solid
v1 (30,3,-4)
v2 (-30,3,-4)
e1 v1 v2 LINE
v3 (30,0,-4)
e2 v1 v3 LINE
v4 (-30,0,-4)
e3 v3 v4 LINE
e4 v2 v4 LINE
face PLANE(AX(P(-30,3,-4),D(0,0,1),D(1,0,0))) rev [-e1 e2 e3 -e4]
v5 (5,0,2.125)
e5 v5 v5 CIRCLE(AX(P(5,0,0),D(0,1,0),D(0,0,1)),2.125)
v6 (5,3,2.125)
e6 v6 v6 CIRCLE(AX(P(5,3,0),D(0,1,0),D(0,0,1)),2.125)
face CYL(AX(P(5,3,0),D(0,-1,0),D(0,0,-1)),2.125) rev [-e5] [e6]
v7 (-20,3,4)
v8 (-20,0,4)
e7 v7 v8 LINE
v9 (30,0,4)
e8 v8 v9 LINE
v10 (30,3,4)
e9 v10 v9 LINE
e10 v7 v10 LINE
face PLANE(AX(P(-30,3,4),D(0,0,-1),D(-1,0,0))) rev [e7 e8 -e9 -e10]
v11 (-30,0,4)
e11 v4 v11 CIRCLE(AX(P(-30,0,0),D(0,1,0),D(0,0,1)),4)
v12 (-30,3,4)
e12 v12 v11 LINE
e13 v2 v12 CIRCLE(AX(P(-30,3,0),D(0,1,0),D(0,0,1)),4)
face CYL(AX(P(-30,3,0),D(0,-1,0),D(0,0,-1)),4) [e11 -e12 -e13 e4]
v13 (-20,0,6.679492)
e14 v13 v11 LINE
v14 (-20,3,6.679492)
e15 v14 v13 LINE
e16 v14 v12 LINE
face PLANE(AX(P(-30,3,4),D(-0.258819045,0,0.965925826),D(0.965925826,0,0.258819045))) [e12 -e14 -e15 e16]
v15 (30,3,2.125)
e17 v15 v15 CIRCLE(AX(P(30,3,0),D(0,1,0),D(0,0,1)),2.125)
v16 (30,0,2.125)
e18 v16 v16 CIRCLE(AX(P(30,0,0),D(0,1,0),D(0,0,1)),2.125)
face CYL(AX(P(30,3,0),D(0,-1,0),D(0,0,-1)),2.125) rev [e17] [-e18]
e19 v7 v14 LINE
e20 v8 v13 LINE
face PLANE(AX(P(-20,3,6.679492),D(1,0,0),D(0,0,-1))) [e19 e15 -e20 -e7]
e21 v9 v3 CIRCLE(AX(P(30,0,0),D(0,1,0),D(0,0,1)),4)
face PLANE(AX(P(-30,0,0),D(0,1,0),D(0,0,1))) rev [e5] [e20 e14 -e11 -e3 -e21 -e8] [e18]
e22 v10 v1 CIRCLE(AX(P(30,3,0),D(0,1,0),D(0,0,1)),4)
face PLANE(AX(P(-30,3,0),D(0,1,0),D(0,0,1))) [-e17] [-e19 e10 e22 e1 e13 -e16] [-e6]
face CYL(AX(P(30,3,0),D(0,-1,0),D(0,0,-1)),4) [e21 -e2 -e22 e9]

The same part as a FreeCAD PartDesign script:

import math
import FreeCAD as App
import Part
import Sketcher
Q = App.Units.Quantity


def add_polygon(sketch, points):
    """Adds a closed chain of lines whose ends are joined by coincident constraints."""
    first, n = sketch.GeometryCount, len(points)
    for a, b in zip(points, points[1:] + points[:1]):
        sketch.addGeometry(Part.LineSegment(App.Vector(*a, 0), App.Vector(*b, 0)), False)
    for i in range(n):
        sketch.addConstraint(Sketcher.Constraint("Coincident", first + i, 2, first + (i + 1) % n, 1))

doc = App.newDocument("Part")
params = doc.addObject("Spreadsheet::Sheet", "Params")
for row, (alias, value) in enumerate([
    ("sketch1_radius", "4 mm"),
    ("sketch1_diameter", "4.25 mm"),
    ("sketch1_width", "60 mm"),
    ("pad1_length", "3 mm"),
    ("sketch2_width", "10 mm"),
    ("pad2_length", "3 mm"),
], start=1):
    params.set(f"A{row}", alias)
    params.set(f"B{row}", "=" + value)
    params.setAlias(f"B{row}", alias)

body = doc.addObject("PartDesign::Body", "Body")

# Sketch on XZ plane
sketch1 = body.newObject("Sketcher::SketchObject", "Sketch")
sketch1.AttachmentSupport = (doc.getObject("XZ_Plane"), [""])
sketch1.MapMode = "FlatFace"
sketch1.addGeometry([
    Part.LineSegment(App.Vector(30, -4, 0), App.Vector(-30, -4, 0)),  # 0
    Part.ArcOfCircle(Part.Circle(App.Vector(-30, 0, 0), App.Vector(0, 0, 1), 4), math.radians(90), math.radians(270)),  # 1
    Part.LineSegment(App.Vector(-30, 4, 0), App.Vector(30, 4, 0)),  # 2
    Part.ArcOfCircle(Part.Circle(App.Vector(30, 0, 0), App.Vector(0, 0, 1), 4), math.radians(-90), math.radians(90)),  # 3
    Part.Circle(App.Vector(30, 0, 0), App.Vector(0, 0, 1), 2.1),  # 4
    Part.Circle(App.Vector(5, 0, 0), App.Vector(0, 0, 1), 2.1),  # 5
], False)
sketch1.addConstraint([
    Sketcher.Constraint("Tangent", 0, 2, 1, 2),
    Sketcher.Constraint("Tangent", 1, 1, 2, 1),
    Sketcher.Constraint("Tangent", 2, 2, 3, 2),
    Sketcher.Constraint("Tangent", 3, 1, 0, 1),
    Sketcher.Constraint("Horizontal", 0),
    Sketcher.Constraint("Horizontal", 2),
    Sketcher.Constraint("Coincident", 4, 3, 3, 3),
    Sketcher.Constraint("Equal", 4, 5),
    Sketcher.Constraint("Symmetric", 1, 3, 3, 3, -1, 1),
    Sketcher.Constraint("PointOnObject", 5, 3, -1),
    Sketcher.Constraint("Radius", 1, Q("4 mm")),
    Sketcher.Constraint("Diameter", 4, Q("4.25 mm")),
    Sketcher.Constraint("DistanceX", 0, 2, 0, 1, Q("60 mm")),
    Sketcher.Constraint("DistanceX", -1, 1, 5, 3, Q("5 mm")),
])
sketch1.setExpression("Constraints[10]", "Params.sketch1_radius")
sketch1.setExpression("Constraints[11]", "Params.sketch1_diameter")
sketch1.setExpression("Constraints[12]", "Params.sketch1_width")
pad1 = body.newObject("PartDesign::Pad", "Pad")
pad1.Profile = sketch1
pad1.setExpression("Length", "Params.pad1_length")
pad1.Reversed = True

# Sketch on XZ plane
sketch2 = body.newObject("Sketcher::SketchObject", "Sketch001")
sketch2.AttachmentSupport = (doc.getObject("XZ_Plane"), [""])
sketch2.MapMode = "FlatFace"
add_polygon(sketch2, [(-20, 6.7), (-30, 4), (-20, 4)])  # lines 0-2
sketch2.addConstraint([
    Sketcher.Constraint("Horizontal", 1),
    Sketcher.Constraint("Vertical", 2),
    Sketcher.Constraint("DistanceX", 1, 1, 1, 2, Q("10 mm")),
    Sketcher.Constraint("Angle", 0, Q("-165 deg")),
    Sketcher.Constraint("DistanceX", 0, 2, -1, 1, Q("30 mm")),
    Sketcher.Constraint("DistanceY", -1, 1, 0, 2, Q("4 mm")),
])
sketch2.setExpression("Constraints[5]", "Params.sketch2_width")
pad2 = body.newObject("PartDesign::Pad", "Pad001")
pad2.Profile = sketch2
pad2.setExpression("Length", "Params.pad2_length")
pad2.Reversed = True

doc.recompute()
